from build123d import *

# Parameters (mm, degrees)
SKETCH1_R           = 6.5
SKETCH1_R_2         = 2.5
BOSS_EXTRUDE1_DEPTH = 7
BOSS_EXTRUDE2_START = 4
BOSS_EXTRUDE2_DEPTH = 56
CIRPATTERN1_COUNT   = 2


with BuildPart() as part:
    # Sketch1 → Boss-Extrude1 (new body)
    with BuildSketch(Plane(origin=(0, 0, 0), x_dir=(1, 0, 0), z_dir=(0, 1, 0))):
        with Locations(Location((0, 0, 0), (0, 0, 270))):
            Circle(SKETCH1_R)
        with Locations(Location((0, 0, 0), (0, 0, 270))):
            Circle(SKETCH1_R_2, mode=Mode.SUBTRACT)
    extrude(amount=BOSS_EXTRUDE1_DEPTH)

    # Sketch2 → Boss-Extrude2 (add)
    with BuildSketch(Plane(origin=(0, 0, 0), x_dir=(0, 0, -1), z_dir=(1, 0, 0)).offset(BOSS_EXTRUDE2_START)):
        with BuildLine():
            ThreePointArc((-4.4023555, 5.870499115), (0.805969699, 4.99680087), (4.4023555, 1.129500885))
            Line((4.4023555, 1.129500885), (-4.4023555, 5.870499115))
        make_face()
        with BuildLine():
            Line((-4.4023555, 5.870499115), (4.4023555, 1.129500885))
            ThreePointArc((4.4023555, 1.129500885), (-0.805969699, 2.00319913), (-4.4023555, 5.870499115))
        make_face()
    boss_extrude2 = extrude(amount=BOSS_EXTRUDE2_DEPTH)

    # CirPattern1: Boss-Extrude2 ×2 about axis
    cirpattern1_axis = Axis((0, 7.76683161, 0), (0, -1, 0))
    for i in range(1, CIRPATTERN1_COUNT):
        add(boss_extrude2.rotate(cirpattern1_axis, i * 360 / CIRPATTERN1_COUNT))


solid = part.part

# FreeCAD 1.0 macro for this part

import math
import FreeCAD as App
import Part
import Sketcher

V = App.Vector

doc = App.newDocument("Part")
params = doc.addObject("Spreadsheet::Sheet", "Params")
for row, (alias, value) in enumerate([
    ("sketch1_diameter", "13 mm"),
    ("sketch1_diameter2", "5 mm"),
    ("pad1_length", "7 mm"),
    ("pad2_length", "56 mm"),
], start=1):
    params.set(f"A{row}", alias)
    params.set(f"B{row}", "=" + value)
    params.setAlias(f"B{row}", alias)

body = doc.addObject("PartDesign::Body", "Body")

sketch1 = doc.addObject("Sketcher::SketchObject", "Sketch")
body.addObject(sketch1)
sketch1.AttachmentSupport = (doc.XZ_Plane, [""])
sketch1.MapMode = "FlatFace"
sketch1.addGeometry([
    Part.Circle(V(0, 0, 0), V(0, 0, 1), 6.5),
    Part.Circle(V(0, 0, 0), V(0, 0, 1), 2.5),
], False)
sketch1.addConstraint([
    Sketcher.Constraint("Coincident", 0, 3, -1, 1),
    Sketcher.Constraint("Coincident", 1, 3, -1, 1),
    Sketcher.Constraint("Diameter", 0, 13.0),
    Sketcher.Constraint("Diameter", 1, 5.0),
])
sketch1.setExpression("Constraints[2]", "Params.sketch1_diameter")
sketch1.setExpression("Constraints[3]", "Params.sketch1_diameter2")
pad1 = doc.addObject("PartDesign::Pad", "Pad")
body.addObject(pad1)
pad1.Profile = sketch1
pad1.setExpression("Length", "Params.pad1_length")
pad1.Reversed = True

sketch2 = doc.addObject("Sketcher::SketchObject", "Sketch001")
body.addObject(sketch2)
sketch2.AttachmentSupport = (doc.YZ_Plane, [""])
sketch2.MapMode = "FlatFace"
sketch2.AttachmentOffset = App.Placement(V(0, 0, 4), App.Rotation())
sketch2.addGeometry([
    Part.ArcOfCircle(Part.Circle(V(-2, 3, 0), V(0, 0, 1), 8), math.radians(-66), math.radians(9)),
    Part.ArcOfCircle(Part.Circle(V(9, -3, 0), V(0, 0, 1), 8), math.radians(114), math.radians(189)),
], False)
sketch2.addConstraint([
    Sketcher.Constraint("Coincident", 0, 1, 1, 2),
    Sketcher.Constraint("Coincident", 1, 1, 0, 2),
    Sketcher.Constraint("Equal", 0, 1),
    Sketcher.Constraint("Radius", 0, 8.202941),
    Sketcher.Constraint("DistanceX", 0, 1, 1, 1, 4.740998),
    Sketcher.Constraint("DistanceX", -1, 1, 0, 1, 1.129501),
    Sketcher.Constraint("DistanceY", 0, 1, 0, 3, 7.485399),
    Sketcher.Constraint("DistanceY", -1, 1, 0, 3, 3.083043),
])
pad2 = doc.addObject("PartDesign::Pad", "Pad001")
body.addObject(pad2)
pad2.Profile = sketch2
pad2.setExpression("Length", "Params.pad2_length")
doc.recompute()

polarpattern = doc.addObject("PartDesign::PolarPattern", "PolarPattern")
body.addObject(polarpattern)
polarpattern.Originals = [pad2]
polarpattern.Axis = (doc.Y_Axis, [""])
polarpattern.Angle = 360
polarpattern.Occurrences = 2
body.Tip = polarpattern

doc.recompute()
